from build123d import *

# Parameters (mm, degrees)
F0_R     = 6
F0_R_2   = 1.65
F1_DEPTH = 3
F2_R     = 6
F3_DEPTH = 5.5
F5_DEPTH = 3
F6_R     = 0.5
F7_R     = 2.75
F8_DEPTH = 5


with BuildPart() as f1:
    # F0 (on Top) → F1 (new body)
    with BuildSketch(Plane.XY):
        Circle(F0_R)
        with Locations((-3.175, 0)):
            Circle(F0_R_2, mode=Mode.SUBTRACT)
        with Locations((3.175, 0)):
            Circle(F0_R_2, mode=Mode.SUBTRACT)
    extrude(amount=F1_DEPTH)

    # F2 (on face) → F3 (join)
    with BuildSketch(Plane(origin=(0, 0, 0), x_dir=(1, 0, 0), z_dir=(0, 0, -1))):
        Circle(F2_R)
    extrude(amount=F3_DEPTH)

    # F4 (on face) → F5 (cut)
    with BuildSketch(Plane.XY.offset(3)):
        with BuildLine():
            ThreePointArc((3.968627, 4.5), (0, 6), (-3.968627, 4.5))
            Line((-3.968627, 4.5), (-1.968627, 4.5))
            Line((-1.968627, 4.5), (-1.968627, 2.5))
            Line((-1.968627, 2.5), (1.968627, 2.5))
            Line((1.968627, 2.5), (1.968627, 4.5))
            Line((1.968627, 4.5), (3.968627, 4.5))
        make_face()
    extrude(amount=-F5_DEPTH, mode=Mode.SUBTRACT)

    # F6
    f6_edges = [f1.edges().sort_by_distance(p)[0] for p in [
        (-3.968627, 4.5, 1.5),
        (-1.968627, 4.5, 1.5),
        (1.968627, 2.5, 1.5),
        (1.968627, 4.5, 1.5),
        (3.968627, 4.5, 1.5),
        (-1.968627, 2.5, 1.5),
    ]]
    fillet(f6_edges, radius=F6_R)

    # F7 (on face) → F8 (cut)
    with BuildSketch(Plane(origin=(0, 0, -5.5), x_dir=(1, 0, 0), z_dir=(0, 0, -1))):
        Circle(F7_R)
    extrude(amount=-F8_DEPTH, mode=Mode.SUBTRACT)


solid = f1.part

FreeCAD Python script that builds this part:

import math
import FreeCAD as App
import Part
import Sketcher
from FreeCAD import Vector


def edges_at(feature, points):
    """Names of the edges that pass closest to the given points."""
    edges = feature.Shape.Edges
    near = lambda p: min(range(len(edges)), key=lambda i: edges[i].distToShape(Part.Vertex(*p))[0])
    return sorted({f"Edge{near(p) + 1}" for p in points})

doc = App.newDocument("Part")
body = doc.addObject("PartDesign::Body", "Body")

# Sketch on XY plane
sketch1 = doc.addObject("Sketcher::SketchObject", "Sketch")
body.addObject(sketch1)
sketch1.AttachmentSupport = (doc.XY_Plane, [""])
sketch1.MapMode = "FlatFace"
sketch1.addGeometry(Part.Circle(Vector(0, 0, 0), Vector(0, 0, 1), 6), False)
sketch1.addGeometry(Part.Circle(Vector(-3.175, 0, 0), Vector(0, 0, 1), 1.65), False)
sketch1.addGeometry(Part.Circle(Vector(3.175, 0, 0), Vector(0, 0, 1), 1.65), False)
sketch1.addConstraint(Sketcher.Constraint("Coincident", 0, 3, -1, 1))
sketch1.addConstraint(Sketcher.Constraint("Equal", 1, 2))
sketch1.addConstraint(Sketcher.Constraint("Symmetric", 1, 3, 2, 3, -1, 1))
sketch1.addConstraint(Sketcher.Constraint("PointOnObject", 1, 3, -1))
sketch1.addConstraint(Sketcher.Constraint("Diameter", 0, 12.0))
sketch1.addConstraint(Sketcher.Constraint("Diameter", 1, 3.3))
sketch1.addConstraint(Sketcher.Constraint("DistanceX", 1, 3, 2, 3, 6.35))
pad1 = doc.addObject("PartDesign::Pad", "Pad")
body.addObject(pad1)
pad1.Profile = sketch1
pad1.Length = 3

# Sketch on XY plane
sketch2 = doc.addObject("Sketcher::SketchObject", "Sketch001")
body.addObject(sketch2)
sketch2.AttachmentSupport = (doc.XY_Plane, [""])
sketch2.MapMode = "FlatFace"
sketch2.addGeometry(Part.Circle(Vector(0, 0, 0), Vector(0, 0, 1), 6), False)
sketch2.addConstraint(Sketcher.Constraint("Coincident", 0, 3, -1, 1))
sketch2.addConstraint(Sketcher.Constraint("Diameter", 0, 12.0))
pad2 = doc.addObject("PartDesign::Pad", "Pad001")
body.addObject(pad2)
pad2.Profile = sketch2
pad2.Length = 5.5
pad2.Reversed = True

# Sketch on XY plane
sketch3 = doc.addObject("Sketcher::SketchObject", "Sketch002")
body.addObject(sketch3)
sketch3.AttachmentSupport = (doc.XY_Plane, [""])
sketch3.MapMode = "FlatFace"
sketch3.AttachmentOffset = App.Placement(Vector(0, 0, 3), App.Rotation())
sketch3.addGeometry(Part.ArcOfCircle(Part.Circle(Vector(0, 0, 0), Vector(0, 0, 1), 6), math.radians(48.590378), math.radians(131.409622)), False)
sketch3.addGeometry(Part.LineSegment(Vector(-3.968627, 4.5, 0), Vector(-1.968627, 4.5, 0)), False)
sketch3.addGeometry(Part.LineSegment(Vector(-1.968627, 4.5, 0), Vector(-1.968627, 2.5, 0)), False)
sketch3.addGeometry(Part.LineSegment(Vector(-1.968627, 2.5, 0), Vector(1.968627, 2.5, 0)), False)
sketch3.addGeometry(Part.LineSegment(Vector(1.968627, 2.5, 0), Vector(1.968627, 4.5, 0)), False)
sketch3.addGeometry(Part.LineSegment(Vector(1.968627, 4.5, 0), Vector(3.968627, 4.5, 0)), False)
sketch3.addConstraint(Sketcher.Constraint("Coincident", 0, 2, 1, 1))
sketch3.addConstraint(Sketcher.Constraint("Coincident", 1, 2, 2, 1))
sketch3.addConstraint(Sketcher.Constraint("Coincident", 2, 2, 3, 1))
sketch3.addConstraint(Sketcher.Constraint("Coincident", 3, 2, 4, 1))
sketch3.addConstraint(Sketcher.Constraint("Coincident", 4, 2, 5, 1))
sketch3.addConstraint(Sketcher.Constraint("Coincident", 5, 2, 0, 1))
sketch3.addConstraint(Sketcher.Constraint("Horizontal", 1))
sketch3.addConstraint(Sketcher.Constraint("Vertical", 2))
sketch3.addConstraint(Sketcher.Constraint("Horizontal", 3))
sketch3.addConstraint(Sketcher.Constraint("Vertical", 4))
sketch3.addConstraint(Sketcher.Constraint("Horizontal", 5))
sketch3.addConstraint(Sketcher.Constraint("Coincident", 0, 3, -1, 1))
sketch3.addConstraint(Sketcher.Constraint("Symmetric", 1, 2, 4, 2, -2))
sketch3.addConstraint(Sketcher.Constraint("Equal", 5, 2))
sketch3.addConstraint(Sketcher.Constraint("Radius", 0, 6.0))
sketch3.addConstraint(Sketcher.Constraint("DistanceX", 1, 1, 1, 2, 2.0))
sketch3.addConstraint(Sketcher.Constraint("DistanceY", -1, 1, 0, 2, 4.5))
pocket1 = doc.addObject("PartDesign::Pocket", "Pocket")
body.addObject(pocket1)
pocket1.Profile = sketch3
pocket1.Length = 3
doc.recompute()

fillet = doc.addObject("PartDesign::Fillet", "Fillet")
body.addObject(fillet)
fillet.Base = (pocket1, edges_at(pocket1, [
    (-3.969, 4.5, 1.5),
    (-1.969, 4.5, 1.5),
    (1.969, 2.5, 1.5),
    (1.969, 4.5, 1.5),
    (3.969, 4.5, 1.5),
    (-1.969, 2.5, 1.5),
]))
fillet.Radius = 0.5

# Sketch on XY plane
sketch4 = doc.addObject("Sketcher::SketchObject", "Sketch003")
body.addObject(sketch4)
sketch4.AttachmentSupport = (doc.XY_Plane, [""])
sketch4.MapMode = "FlatFace"
sketch4.AttachmentOffset = App.Placement(Vector(0, 0, -5.5), App.Rotation())
sketch4.addGeometry(Part.Circle(Vector(0, 0, 0), Vector(0, 0, 1), 2.75), False)
sketch4.addConstraint(Sketcher.Constraint("Coincident", 0, 3, -1, 1))
sketch4.addConstraint(Sketcher.Constraint("Diameter", 0, 5.5))
pocket2 = doc.addObject("PartDesign::Pocket", "Pocket001")
body.addObject(pocket2)
pocket2.Profile = sketch4
pocket2.Length = 5
pocket2.Reversed = True

doc.recompute()
